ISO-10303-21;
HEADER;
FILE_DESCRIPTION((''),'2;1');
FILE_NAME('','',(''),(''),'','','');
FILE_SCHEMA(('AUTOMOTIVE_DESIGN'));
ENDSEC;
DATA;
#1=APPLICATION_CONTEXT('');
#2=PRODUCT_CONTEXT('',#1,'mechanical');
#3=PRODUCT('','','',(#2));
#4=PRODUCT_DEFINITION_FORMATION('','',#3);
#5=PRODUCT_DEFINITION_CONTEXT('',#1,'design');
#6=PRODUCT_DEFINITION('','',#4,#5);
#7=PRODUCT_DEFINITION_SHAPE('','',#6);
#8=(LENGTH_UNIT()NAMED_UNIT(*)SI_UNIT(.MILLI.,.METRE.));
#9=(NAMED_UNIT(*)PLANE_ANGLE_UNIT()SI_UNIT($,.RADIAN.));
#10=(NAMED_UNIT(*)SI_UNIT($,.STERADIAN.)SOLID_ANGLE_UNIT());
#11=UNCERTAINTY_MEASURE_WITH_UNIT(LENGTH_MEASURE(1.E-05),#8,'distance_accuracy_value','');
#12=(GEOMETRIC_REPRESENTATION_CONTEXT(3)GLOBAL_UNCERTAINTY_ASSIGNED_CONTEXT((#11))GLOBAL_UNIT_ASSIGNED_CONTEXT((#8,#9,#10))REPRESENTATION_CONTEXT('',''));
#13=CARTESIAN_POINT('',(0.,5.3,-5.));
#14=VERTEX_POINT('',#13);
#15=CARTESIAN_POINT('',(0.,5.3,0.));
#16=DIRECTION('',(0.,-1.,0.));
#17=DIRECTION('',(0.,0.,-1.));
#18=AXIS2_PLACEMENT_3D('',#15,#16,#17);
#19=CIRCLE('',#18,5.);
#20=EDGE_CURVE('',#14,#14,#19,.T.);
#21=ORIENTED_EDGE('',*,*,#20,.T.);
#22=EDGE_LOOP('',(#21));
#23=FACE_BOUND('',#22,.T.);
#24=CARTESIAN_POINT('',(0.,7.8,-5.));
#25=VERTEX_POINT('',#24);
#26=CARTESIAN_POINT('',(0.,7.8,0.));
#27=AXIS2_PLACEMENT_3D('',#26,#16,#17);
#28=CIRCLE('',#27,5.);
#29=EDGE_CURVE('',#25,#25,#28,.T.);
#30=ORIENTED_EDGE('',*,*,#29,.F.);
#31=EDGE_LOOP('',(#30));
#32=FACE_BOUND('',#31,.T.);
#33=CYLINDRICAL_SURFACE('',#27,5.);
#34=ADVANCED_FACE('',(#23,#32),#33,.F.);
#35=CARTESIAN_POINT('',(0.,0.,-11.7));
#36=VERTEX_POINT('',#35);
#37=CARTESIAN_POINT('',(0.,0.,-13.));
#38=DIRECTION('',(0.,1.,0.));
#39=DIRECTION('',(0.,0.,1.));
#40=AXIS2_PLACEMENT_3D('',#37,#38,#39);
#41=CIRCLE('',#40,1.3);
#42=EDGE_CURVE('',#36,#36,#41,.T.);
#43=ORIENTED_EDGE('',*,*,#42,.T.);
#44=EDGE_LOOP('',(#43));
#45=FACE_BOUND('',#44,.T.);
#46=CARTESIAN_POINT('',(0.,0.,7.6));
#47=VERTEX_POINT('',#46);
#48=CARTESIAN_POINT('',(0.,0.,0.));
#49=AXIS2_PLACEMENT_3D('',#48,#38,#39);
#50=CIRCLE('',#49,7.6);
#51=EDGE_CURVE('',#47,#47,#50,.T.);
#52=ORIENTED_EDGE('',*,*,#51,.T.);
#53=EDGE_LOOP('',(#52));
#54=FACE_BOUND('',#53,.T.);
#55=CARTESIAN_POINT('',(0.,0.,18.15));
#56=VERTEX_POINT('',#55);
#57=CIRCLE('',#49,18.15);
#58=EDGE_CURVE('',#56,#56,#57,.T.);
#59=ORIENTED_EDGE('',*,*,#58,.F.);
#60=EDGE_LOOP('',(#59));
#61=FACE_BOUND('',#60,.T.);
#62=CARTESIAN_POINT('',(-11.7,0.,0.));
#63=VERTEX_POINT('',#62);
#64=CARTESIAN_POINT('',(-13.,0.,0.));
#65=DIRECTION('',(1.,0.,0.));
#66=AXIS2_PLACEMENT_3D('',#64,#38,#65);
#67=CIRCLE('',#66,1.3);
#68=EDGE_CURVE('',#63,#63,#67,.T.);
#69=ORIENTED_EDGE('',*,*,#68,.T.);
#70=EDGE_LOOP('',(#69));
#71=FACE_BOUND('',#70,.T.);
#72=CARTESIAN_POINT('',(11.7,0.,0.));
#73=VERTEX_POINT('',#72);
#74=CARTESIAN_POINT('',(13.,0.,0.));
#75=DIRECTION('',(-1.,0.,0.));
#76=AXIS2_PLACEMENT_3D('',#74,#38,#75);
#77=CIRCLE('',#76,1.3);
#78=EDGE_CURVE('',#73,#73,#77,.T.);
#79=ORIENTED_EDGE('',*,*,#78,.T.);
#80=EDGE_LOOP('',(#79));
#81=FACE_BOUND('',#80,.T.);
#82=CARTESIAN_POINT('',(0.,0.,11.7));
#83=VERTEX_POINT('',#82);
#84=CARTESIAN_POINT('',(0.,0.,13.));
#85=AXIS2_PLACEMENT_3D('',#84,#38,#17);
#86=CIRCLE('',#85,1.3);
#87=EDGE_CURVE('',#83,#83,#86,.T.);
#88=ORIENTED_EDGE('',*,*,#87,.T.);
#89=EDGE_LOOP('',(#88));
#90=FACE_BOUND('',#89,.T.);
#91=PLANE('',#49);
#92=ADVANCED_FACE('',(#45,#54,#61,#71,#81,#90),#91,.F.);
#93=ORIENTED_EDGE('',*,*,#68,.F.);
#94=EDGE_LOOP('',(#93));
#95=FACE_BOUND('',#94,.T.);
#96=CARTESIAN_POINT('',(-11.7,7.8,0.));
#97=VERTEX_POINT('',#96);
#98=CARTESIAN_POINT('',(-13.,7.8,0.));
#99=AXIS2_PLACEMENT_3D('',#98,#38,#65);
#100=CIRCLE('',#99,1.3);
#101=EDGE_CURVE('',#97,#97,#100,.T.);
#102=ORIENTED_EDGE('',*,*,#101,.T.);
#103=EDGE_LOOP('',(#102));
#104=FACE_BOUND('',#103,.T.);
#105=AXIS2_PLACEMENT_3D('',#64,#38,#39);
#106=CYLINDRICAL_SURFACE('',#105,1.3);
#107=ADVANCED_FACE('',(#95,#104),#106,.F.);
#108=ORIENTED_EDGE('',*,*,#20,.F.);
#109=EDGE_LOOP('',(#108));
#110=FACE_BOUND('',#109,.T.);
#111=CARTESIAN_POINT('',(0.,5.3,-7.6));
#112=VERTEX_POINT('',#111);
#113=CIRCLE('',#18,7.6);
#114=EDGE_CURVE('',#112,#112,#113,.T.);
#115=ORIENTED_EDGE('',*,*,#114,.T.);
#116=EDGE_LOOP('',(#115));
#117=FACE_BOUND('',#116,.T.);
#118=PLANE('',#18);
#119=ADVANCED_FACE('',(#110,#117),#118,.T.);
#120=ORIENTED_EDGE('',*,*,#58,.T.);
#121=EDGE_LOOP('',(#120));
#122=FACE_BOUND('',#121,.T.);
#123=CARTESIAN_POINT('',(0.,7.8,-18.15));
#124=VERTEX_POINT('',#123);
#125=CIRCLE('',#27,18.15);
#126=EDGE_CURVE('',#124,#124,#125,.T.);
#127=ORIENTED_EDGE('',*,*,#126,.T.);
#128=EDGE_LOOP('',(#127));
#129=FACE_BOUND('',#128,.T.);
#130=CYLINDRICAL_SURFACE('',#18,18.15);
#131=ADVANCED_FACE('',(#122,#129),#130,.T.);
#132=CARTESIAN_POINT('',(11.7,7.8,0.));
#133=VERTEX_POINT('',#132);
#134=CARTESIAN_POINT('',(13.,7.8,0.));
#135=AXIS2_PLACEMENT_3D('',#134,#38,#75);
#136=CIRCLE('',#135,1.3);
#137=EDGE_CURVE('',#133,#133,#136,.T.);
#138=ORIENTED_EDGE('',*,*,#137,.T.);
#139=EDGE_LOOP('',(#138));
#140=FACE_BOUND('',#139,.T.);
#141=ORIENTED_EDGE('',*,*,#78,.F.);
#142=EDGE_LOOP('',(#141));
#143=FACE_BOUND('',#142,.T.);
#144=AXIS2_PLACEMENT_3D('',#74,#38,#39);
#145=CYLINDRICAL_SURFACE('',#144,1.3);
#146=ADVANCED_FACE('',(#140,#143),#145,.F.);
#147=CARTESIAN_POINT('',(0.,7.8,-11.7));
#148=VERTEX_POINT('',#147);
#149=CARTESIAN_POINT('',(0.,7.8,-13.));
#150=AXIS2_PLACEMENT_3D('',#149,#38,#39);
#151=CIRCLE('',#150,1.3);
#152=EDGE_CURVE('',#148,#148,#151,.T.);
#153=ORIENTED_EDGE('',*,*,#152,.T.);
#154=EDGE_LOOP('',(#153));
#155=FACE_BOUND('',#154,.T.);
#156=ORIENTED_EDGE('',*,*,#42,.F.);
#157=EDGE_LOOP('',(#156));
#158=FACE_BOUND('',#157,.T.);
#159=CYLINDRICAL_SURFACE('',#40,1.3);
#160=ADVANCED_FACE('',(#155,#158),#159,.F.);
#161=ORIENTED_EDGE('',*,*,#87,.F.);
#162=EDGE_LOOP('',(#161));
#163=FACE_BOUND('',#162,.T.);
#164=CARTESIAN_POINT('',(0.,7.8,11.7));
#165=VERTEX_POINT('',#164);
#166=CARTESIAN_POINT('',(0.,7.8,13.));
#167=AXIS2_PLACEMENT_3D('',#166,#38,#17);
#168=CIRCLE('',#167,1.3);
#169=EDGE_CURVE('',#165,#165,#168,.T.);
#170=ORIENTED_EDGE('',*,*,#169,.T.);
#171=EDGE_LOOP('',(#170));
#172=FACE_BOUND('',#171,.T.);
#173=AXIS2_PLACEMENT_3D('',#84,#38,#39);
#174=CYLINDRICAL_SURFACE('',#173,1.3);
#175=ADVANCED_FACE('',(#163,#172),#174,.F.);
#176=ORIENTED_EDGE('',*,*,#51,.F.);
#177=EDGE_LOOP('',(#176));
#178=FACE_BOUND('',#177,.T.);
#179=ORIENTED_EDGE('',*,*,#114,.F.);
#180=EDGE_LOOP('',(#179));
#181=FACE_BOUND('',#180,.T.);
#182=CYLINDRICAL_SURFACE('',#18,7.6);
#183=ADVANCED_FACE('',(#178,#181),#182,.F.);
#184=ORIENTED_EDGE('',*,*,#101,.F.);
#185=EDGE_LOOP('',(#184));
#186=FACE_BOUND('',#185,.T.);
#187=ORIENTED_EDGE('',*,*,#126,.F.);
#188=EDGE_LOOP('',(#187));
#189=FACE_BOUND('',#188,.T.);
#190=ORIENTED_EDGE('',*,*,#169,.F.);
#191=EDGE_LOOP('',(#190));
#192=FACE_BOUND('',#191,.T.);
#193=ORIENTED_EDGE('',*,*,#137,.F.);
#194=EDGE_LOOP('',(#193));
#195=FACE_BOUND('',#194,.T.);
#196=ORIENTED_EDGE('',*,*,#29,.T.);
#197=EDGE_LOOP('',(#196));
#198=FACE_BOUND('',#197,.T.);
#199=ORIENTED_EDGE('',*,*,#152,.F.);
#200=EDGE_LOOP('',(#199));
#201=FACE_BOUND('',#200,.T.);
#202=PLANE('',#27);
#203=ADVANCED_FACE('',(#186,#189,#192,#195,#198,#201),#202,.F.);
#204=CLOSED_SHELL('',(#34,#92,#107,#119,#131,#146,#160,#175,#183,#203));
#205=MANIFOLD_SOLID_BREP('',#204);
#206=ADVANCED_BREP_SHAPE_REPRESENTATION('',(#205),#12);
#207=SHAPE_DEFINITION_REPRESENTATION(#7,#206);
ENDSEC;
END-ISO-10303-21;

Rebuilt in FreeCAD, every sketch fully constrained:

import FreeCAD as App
import Part
import Sketcher

doc = App.newDocument("Part")
body = doc.addObject("PartDesign::Body", "Body")

sketch1 = body.newObject("Sketcher::SketchObject", "Sketch")
sketch1.AttachmentSupport = (doc.getObject("XZ_Plane"), [""])
sketch1.MapMode = "FlatFace"
sketch1.addGeometry(Part.Circle(App.Vector(0, 0, 0), App.Vector(0, 0, 1), 18), False)
sketch1.addGeometry(Part.Circle(App.Vector(0, 0, 0), App.Vector(0, 0, 1), 8), False)
sketch1.addConstraint(Sketcher.Constraint("Coincident", 0, 3, -1, 1))
sketch1.addConstraint(Sketcher.Constraint("Coincident", 1, 3, -1, 1))
sketch1.addConstraint(Sketcher.Constraint("Diameter", 0, 36.3))
sketch1.addConstraint(Sketcher.Constraint("Diameter", 1, 15.2))
pad1 = body.newObject("PartDesign::Pad", "Pad")
pad1.Profile = sketch1
pad1.Length = 5.3
pad1.Reversed = True

sketch2 = body.newObject("Sketcher::SketchObject", "Sketch001")
sketch2.AttachmentSupport = (doc.getObject("XZ_Plane"), [""])
sketch2.MapMode = "FlatFace"
sketch2.AttachmentOffset = App.Placement(App.Vector(0, 0, -5.3), App.Rotation())
sketch2.addGeometry(Part.Circle(App.Vector(0, 0, 0), App.Vector(0, 0, 1), 18), False)
sketch2.addGeometry(Part.Circle(App.Vector(0, 0, 0), App.Vector(0, 0, 1), 5), False)
sketch2.addConstraint(Sketcher.Constraint("Coincident", 0, 3, -1, 1))
sketch2.addConstraint(Sketcher.Constraint("Coincident", 1, 3, -1, 1))
sketch2.addConstraint(Sketcher.Constraint("Diameter", 1, 10.0))
sketch2.addConstraint(Sketcher.Constraint("Diameter", 0, 36.3))
pad2 = body.newObject("PartDesign::Pad", "Pad001")
pad2.Profile = sketch2
pad2.Length = 2.5
pad2.Reversed = True

sketch3 = body.newObject("Sketcher::SketchObject", "Sketch002")
sketch3.AttachmentSupport = (doc.getObject("XZ_Plane"), [""])
sketch3.MapMode = "FlatFace"
sketch3.AttachmentOffset = App.Placement(App.Vector(0, 0, -7.8), App.Rotation())
sketch3.addGeometry(Part.Circle(App.Vector(0, -13, 0), App.Vector(0, 0, 1), 1.3), False)
sketch3.addConstraint(Sketcher.Constraint("PointOnObject", 0, 3, -2))
sketch3.addConstraint(Sketcher.Constraint("Diameter", 0, 2.6))
sketch3.addConstraint(Sketcher.Constraint("DistanceY", 0, 3, -1, 1, 13.0))
pocket1 = body.newObject("PartDesign::Pocket", "Pocket")
pocket1.Profile = sketch3
pocket1.Type = "ThroughAll"
pocket1.Reversed = True
doc.recompute()

polarpattern = body.newObject("PartDesign::PolarPattern", "PolarPattern")
polarpattern.Originals = [pocket1]
polarpattern.Axis = (doc.getObject("Y_Axis"), [""])
polarpattern.Angle = 360
polarpattern.Occurrences = 4
body.Tip = polarpattern

doc.recompute()
